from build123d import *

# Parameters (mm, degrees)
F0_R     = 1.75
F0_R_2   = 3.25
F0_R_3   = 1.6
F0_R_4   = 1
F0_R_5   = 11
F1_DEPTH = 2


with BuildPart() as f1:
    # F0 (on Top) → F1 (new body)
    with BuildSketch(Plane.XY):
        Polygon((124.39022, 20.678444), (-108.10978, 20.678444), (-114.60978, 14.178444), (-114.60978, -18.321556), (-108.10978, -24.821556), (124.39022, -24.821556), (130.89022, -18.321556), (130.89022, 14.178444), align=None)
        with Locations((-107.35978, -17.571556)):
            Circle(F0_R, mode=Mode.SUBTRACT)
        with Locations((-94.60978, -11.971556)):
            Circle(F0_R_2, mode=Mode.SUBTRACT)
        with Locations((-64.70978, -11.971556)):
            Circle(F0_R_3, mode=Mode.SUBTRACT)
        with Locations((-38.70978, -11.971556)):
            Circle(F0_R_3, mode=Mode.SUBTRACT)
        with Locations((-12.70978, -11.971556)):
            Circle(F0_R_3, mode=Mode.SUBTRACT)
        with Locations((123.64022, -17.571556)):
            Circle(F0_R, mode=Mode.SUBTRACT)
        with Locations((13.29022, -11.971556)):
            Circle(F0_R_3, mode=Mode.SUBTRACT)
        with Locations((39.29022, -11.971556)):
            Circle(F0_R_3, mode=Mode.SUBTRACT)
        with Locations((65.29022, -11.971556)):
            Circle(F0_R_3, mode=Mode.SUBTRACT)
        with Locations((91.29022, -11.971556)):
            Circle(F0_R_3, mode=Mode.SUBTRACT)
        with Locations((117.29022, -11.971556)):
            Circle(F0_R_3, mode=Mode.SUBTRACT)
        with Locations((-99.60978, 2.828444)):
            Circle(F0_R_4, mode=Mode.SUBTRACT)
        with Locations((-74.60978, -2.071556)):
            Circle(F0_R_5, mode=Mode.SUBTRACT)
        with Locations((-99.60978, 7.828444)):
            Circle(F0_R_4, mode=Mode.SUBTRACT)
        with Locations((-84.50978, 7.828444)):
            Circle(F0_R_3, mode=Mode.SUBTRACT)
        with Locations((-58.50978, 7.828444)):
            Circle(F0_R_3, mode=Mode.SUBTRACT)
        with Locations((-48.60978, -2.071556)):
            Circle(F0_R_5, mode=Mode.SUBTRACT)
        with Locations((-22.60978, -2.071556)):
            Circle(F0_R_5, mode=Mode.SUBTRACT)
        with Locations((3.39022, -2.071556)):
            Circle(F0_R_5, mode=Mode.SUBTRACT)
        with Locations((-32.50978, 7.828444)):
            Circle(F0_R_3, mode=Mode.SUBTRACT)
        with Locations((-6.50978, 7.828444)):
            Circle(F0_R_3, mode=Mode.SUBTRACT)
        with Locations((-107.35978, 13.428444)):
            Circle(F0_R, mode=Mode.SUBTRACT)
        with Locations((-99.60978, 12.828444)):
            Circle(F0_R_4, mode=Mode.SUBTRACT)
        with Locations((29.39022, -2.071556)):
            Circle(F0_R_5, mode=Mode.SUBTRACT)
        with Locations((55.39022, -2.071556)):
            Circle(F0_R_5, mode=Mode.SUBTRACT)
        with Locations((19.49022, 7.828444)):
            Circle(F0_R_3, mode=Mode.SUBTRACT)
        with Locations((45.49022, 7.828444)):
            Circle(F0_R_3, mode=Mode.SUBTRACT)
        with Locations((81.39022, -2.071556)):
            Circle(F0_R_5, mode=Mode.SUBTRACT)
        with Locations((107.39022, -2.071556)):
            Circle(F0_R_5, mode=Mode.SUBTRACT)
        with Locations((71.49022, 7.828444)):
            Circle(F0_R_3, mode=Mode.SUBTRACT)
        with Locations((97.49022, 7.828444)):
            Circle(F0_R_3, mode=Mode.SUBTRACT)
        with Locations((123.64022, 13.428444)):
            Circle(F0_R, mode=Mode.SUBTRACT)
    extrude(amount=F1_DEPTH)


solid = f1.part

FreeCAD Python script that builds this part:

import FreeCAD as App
import Part
import Sketcher
from FreeCAD import Vector


def add_polygon(sketch, points):
    """Adds a closed chain of lines whose ends are joined by coincident constraints."""
    first, n = sketch.GeometryCount, len(points)
    for a, b in zip(points, points[1:] + points[:1]):
        sketch.addGeometry(Part.LineSegment(App.Vector(*a, 0), App.Vector(*b, 0)), False)
    for i in range(n):
        sketch.addConstraint(Sketcher.Constraint("Coincident", first + i, 2, first + (i + 1) % n, 1))

doc = App.newDocument("Part")
params = doc.addObject("Spreadsheet::Sheet", "Params")
for row, (alias, value) in enumerate([
    ("sketch1_diameter", "22 mm"),
    ("sketch1_diameter2", "2 mm"),
    ("sketch1_diameter3", "3.5 mm"),
    ("sketch1_diameter4", "6.5 mm"),
    ("sketch1_diameter5", "3.2 mm"),
    ("pad1_length", "2 mm"),
], start=1):
    params.set(f"A{row}", alias)
    params.set(f"B{row}", "=" + value)
    params.setAlias(f"B{row}", alias)

body = doc.addObject("PartDesign::Body", "Body")

# Sketch on XY plane
sketch1 = doc.addObject("Sketcher::SketchObject", "Sketch")
body.addObject(sketch1)
sketch1.AttachmentSupport = (doc.XY_Plane, [""])
sketch1.MapMode = "FlatFace"
add_polygon(sketch1, [(124.39022, 20.678444), (-108.10978, 20.678444), (-114.60978, 14.178444), (-114.60978, -18.321556), (-108.10978, -24.821556), (124.39022, -24.821556), (130.89022, -18.321556), (130.89022, 14.178444)])  # lines 0-7
sketch1.addGeometry(Part.Circle(Vector(-107.35978, -17.571556, 0), Vector(0, 0, 1), 1.75), False)  # 8
sketch1.addGeometry(Part.Circle(Vector(-94.60978, -11.971556, 0), Vector(0, 0, 1), 3.25), False)  # 9
sketch1.addGeometry(Part.Circle(Vector(-64.70978, -11.971556, 0), Vector(0, 0, 1), 1.6), False)  # 10
sketch1.addGeometry(Part.Circle(Vector(-38.70978, -11.971556, 0), Vector(0, 0, 1), 1.6), False)  # 11
sketch1.addGeometry(Part.Circle(Vector(-12.70978, -11.971556, 0), Vector(0, 0, 1), 1.6), False)  # 12
sketch1.addGeometry(Part.Circle(Vector(13.29022, -11.971556, 0), Vector(0, 0, 1), 1.6), False)  # 13
sketch1.addGeometry(Part.Circle(Vector(39.29022, -11.971556, 0), Vector(0, 0, 1), 1.6), False)  # 14
sketch1.addGeometry(Part.Circle(Vector(65.29022, -11.971556, 0), Vector(0, 0, 1), 1.6), False)  # 15
sketch1.addGeometry(Part.Circle(Vector(123.64022, -17.571556, 0), Vector(0, 0, 1), 1.75), False)  # 16
sketch1.addGeometry(Part.Circle(Vector(91.29022, -11.971556, 0), Vector(0, 0, 1), 1.6), False)  # 17
sketch1.addGeometry(Part.Circle(Vector(117.29022, -11.971556, 0), Vector(0, 0, 1), 1.6), False)  # 18
sketch1.addGeometry(Part.Circle(Vector(-74.60978, -2.071556, 0), Vector(0, 0, 1), 11), False)  # 19
sketch1.addGeometry(Part.Circle(Vector(-99.60978, 2.828444, 0), Vector(0, 0, 1), 1), False)  # 20
sketch1.addGeometry(Part.Circle(Vector(-48.60978, -2.071556, 0), Vector(0, 0, 1), 11), False)  # 21
sketch1.addGeometry(Part.Circle(Vector(-22.60978, -2.071556, 0), Vector(0, 0, 1), 11), False)  # 22
sketch1.addGeometry(Part.Circle(Vector(3.39022, -2.071556, 0), Vector(0, 0, 1), 11), False)  # 23
sketch1.addGeometry(Part.Circle(Vector(-99.60978, 7.828444, 0), Vector(0, 0, 1), 1), False)  # 24
sketch1.addGeometry(Part.Circle(Vector(-84.50978, 7.828444, 0), Vector(0, 0, 1), 1.6), False)  # 25
sketch1.addGeometry(Part.Circle(Vector(-58.50978, 7.828444, 0), Vector(0, 0, 1), 1.6), False)  # 26
sketch1.addGeometry(Part.Circle(Vector(-99.60978, 12.828444, 0), Vector(0, 0, 1), 1), False)  # 27
sketch1.addGeometry(Part.Circle(Vector(-107.35978, 13.428444, 0), Vector(0, 0, 1), 1.75), False)  # 28
sketch1.addGeometry(Part.Circle(Vector(-32.50978, 7.828444, 0), Vector(0, 0, 1), 1.6), False)  # 29
sketch1.addGeometry(Part.Circle(Vector(-6.50978, 7.828444, 0), Vector(0, 0, 1), 1.6), False)  # 30
sketch1.addGeometry(Part.Circle(Vector(29.39022, -2.071556, 0), Vector(0, 0, 1), 11), False)  # 31
sketch1.addGeometry(Part.Circle(Vector(55.39022, -2.071556, 0), Vector(0, 0, 1), 11), False)  # 32
sketch1.addGeometry(Part.Circle(Vector(81.39022, -2.071556, 0), Vector(0, 0, 1), 11), False)  # 33
sketch1.addGeometry(Part.Circle(Vector(107.39022, -2.071556, 0), Vector(0, 0, 1), 11), False)  # 34
sketch1.addGeometry(Part.Circle(Vector(19.49022, 7.828444, 0), Vector(0, 0, 1), 1.6), False)  # 35
sketch1.addGeometry(Part.Circle(Vector(45.49022, 7.828444, 0), Vector(0, 0, 1), 1.6), False)  # 36
sketch1.addGeometry(Part.Circle(Vector(71.49022, 7.828444, 0), Vector(0, 0, 1), 1.6), False)  # 37
sketch1.addGeometry(Part.Circle(Vector(97.49022, 7.828444, 0), Vector(0, 0, 1), 1.6), False)  # 38
sketch1.addGeometry(Part.Circle(Vector(123.64022, 13.428444, 0), Vector(0, 0, 1), 1.75), False)  # 39
sketch1.addConstraint([
    Sketcher.Constraint("Horizontal", 0),
    Sketcher.Constraint("Vertical", 2),
    Sketcher.Constraint("Horizontal", 4),
    Sketcher.Constraint("Vertical", 6),
    Sketcher.Constraint("Equal", 10, 11),
    Sketcher.Constraint("Equal", 11, 12),
    Sketcher.Constraint("Equal", 12, 13),
    Sketcher.Constraint("Equal", 13, 14),
    Sketcher.Constraint("Equal", 14, 15),
    Sketcher.Constraint("Equal", 8, 16),
    Sketcher.Constraint("Equal", 15, 17),
    Sketcher.Constraint("Equal", 17, 18),
    Sketcher.Constraint("Equal", 19, 21),
    Sketcher.Constraint("Equal", 21, 22),
    Sketcher.Constraint("Equal", 22, 23),
    Sketcher.Constraint("Equal", 20, 24),
    Sketcher.Constraint("Equal", 18, 25),
    Sketcher.Constraint("Equal", 25, 26),
    Sketcher.Constraint("Equal", 24, 27),
    Sketcher.Constraint("Equal", 16, 28),
    Sketcher.Constraint("Equal", 26, 29),
    Sketcher.Constraint("Equal", 29, 30),
    Sketcher.Constraint("Equal", 23, 31),
    Sketcher.Constraint("Equal", 31, 32),
    Sketcher.Constraint("Equal", 32, 33),
    Sketcher.Constraint("Equal", 33, 34),
    Sketcher.Constraint("Equal", 30, 35),
    Sketcher.Constraint("Equal", 35, 36),
    Sketcher.Constraint("Equal", 36, 37),
    Sketcher.Constraint("Equal", 37, 38),
    Sketcher.Constraint("Equal", 28, 39),
    Sketcher.Constraint("Perpendicular", 1, 3),
    Sketcher.Constraint("Perpendicular", 3, 5),
    Sketcher.Constraint("Perpendicular", 5, 7),
    Sketcher.Constraint("Horizontal", 9, 3, 10, 3),
    Sketcher.Constraint("Horizontal", 10, 3, 11, 3),
    Sketcher.Constraint("Horizontal", 11, 3, 12, 3),
    Sketcher.Constraint("Horizontal", 12, 3, 13, 3),
    Sketcher.Constraint("Horizontal", 13, 3, 14, 3),
    Sketcher.Constraint("Horizontal", 14, 3, 15, 3),
    Sketcher.Constraint("Horizontal", 8, 3, 16, 3),
    Sketcher.Constraint("Horizontal", 15, 3, 17, 3),
    Sketcher.Constraint("Horizontal", 17, 3, 18, 3),
    Sketcher.Constraint("Horizontal", 19, 3, 21, 3),
    Sketcher.Constraint("Horizontal", 21, 3, 22, 3),
    Sketcher.Constraint("Horizontal", 22, 3, 23, 3),
    Sketcher.Constraint("Horizontal", 24, 3, 25, 3),
    Sketcher.Constraint("Horizontal", 25, 3, 26, 3),
    Sketcher.Constraint("Horizontal", 26, 3, 29, 3),
    Sketcher.Constraint("Horizontal", 29, 3, 30, 3),
    Sketcher.Constraint("Horizontal", 23, 3, 31, 3),
    Sketcher.Constraint("Horizontal", 31, 3, 32, 3),
    Sketcher.Constraint("Horizontal", 32, 3, 33, 3),
    Sketcher.Constraint("Horizontal", 33, 3, 34, 3),
    Sketcher.Constraint("Horizontal", 30, 3, 35, 3),
    Sketcher.Constraint("Horizontal", 35, 3, 36, 3),
    Sketcher.Constraint("Horizontal", 36, 3, 37, 3),
    Sketcher.Constraint("Horizontal", 37, 3, 38, 3),
    Sketcher.Constraint("Horizontal", 28, 3, 39, 3),
    Sketcher.Constraint("Horizontal", 2, 2, 5, 2),
    Sketcher.Constraint("Horizontal", 1, 2, 6, 2),
    Sketcher.Constraint("Vertical", 20, 3, 24, 3),
    Sketcher.Constraint("Vertical", 24, 3, 27, 3),
    Sketcher.Constraint("Vertical", 8, 3, 28, 3),
    Sketcher.Constraint("Vertical", 16, 3, 39, 3),
    Sketcher.Constraint("Vertical", 0, 2, 3, 2),
    Sketcher.Constraint("Vertical", 4, 2, 7, 2),
    Sketcher.Constraint("Diameter", 19, 22.0),
    Sketcher.Constraint("Diameter", 20, 2.0),
    Sketcher.Constraint("Diameter", 8, 3.5),
    Sketcher.Constraint("Diameter", 9, 6.5),
    Sketcher.Constraint("Diameter", 10, 3.2),
    Sketcher.Constraint("DistanceX", 0, 2, 0, 1, 232.5),
    Sketcher.Constraint("DistanceY", 2, 2, 2, 1, 32.5),
    Sketcher.Constraint("DistanceX", 10, 3, 11, 3, 26.0),
    Sketcher.Constraint("DistanceX", 11, 3, 12, 3, 26.0),
    Sketcher.Constraint("DistanceX", 12, 3, 13, 3, 26.0),
    Sketcher.Constraint("DistanceX", 13, 3, 14, 3, 26.0),
    Sketcher.Constraint("DistanceX", 14, 3, 15, 3, 26.0),
    Sketcher.Constraint("DistanceX", 15, 3, 17, 3, 26.0),
    Sketcher.Constraint("DistanceX", 17, 3, 18, 3, 26.0),
    Sketcher.Constraint("DistanceX", 9, 3, 19, 3, 20.0),
    Sketcher.Constraint("DistanceX", 20, 3, 9, 3, 5.0),
    Sketcher.Constraint("DistanceX", 19, 3, 21, 3, 26.0),
    Sketcher.Constraint("DistanceX", 21, 3, 22, 3, 26.0),
    Sketcher.Constraint("DistanceX", 22, 3, 23, 3, 26.0),
    Sketcher.Constraint("DistanceY", 20, 3, 24, 3, 5.0),
    Sketcher.Constraint("DistanceX", 25, 3, 26, 3, 26.0),
    Sketcher.Constraint("DistanceY", 24, 3, 27, 3, 5.0),
    Sketcher.Constraint("DistanceX", 26, 3, 29, 3, 26.0),
    Sketcher.Constraint("DistanceX", 29, 3, 30, 3, 26.0),
    Sketcher.Constraint("DistanceX", 23, 3, 31, 3, 26.0),
    Sketcher.Constraint("DistanceX", 31, 3, 32, 3, 26.0),
    Sketcher.Constraint("DistanceX", 32, 3, 33, 3, 26.0),
    Sketcher.Constraint("DistanceX", 33, 3, 34, 3, 26.0),
    Sketcher.Constraint("DistanceX", 30, 3, 35, 3, 26.0),
    Sketcher.Constraint("DistanceX", 35, 3, 36, 3, 26.0),
    Sketcher.Constraint("DistanceX", 36, 3, 37, 3, 26.0),
    Sketcher.Constraint("DistanceX", 37, 3, 38, 3, 26.0),
    Sketcher.Constraint("DistanceY", 16, 3, 39, 3, 31.0),
    Sketcher.Constraint("DistanceX", 1, 2, 27, 3, 15.0),
    Sketcher.Constraint("DistanceX", 34, 3, 4, 2, 17.0),
    Sketcher.Constraint("DistanceY", 8, 3, 9, 3, 5.6),
    Sketcher.Constraint("DistanceX", 9, 3, 10, 3, 29.9),
    Sketcher.Constraint("DistanceY", 10, 3, 19, 3, 9.9),
    Sketcher.Constraint("DistanceY", 9, 3, 20, 3, 14.8),
    Sketcher.Constraint("DistanceX", 25, 3, 19, 3, 9.9),
    Sketcher.Constraint("DistanceX", 8, 3, 9, 3, 12.75),
    Sketcher.Constraint("DistanceX", 15, 3, 16, 3, 58.35),
    Sketcher.Constraint("DistanceY", 28, 3, 0, 2, 7.25),
    Sketcher.Constraint("DistanceX", 8, 3, -1, 1, 107.35978),
    Sketcher.Constraint("DistanceY", 8, 3, -1, 1, 17.571556),
])
sketch1.setExpression("Constraints[75]", "Params.sketch1_diameter")
sketch1.setExpression("Constraints[76]", "Params.sketch1_diameter2")
sketch1.setExpression("Constraints[77]", "Params.sketch1_diameter3")
sketch1.setExpression("Constraints[78]", "Params.sketch1_diameter4")
sketch1.setExpression("Constraints[79]", "Params.sketch1_diameter5")
pad1 = doc.addObject("PartDesign::Pad", "Pad")
body.addObject(pad1)
pad1.Profile = sketch1
pad1.setExpression("Length", "Params.pad1_length")

doc.recompute()
